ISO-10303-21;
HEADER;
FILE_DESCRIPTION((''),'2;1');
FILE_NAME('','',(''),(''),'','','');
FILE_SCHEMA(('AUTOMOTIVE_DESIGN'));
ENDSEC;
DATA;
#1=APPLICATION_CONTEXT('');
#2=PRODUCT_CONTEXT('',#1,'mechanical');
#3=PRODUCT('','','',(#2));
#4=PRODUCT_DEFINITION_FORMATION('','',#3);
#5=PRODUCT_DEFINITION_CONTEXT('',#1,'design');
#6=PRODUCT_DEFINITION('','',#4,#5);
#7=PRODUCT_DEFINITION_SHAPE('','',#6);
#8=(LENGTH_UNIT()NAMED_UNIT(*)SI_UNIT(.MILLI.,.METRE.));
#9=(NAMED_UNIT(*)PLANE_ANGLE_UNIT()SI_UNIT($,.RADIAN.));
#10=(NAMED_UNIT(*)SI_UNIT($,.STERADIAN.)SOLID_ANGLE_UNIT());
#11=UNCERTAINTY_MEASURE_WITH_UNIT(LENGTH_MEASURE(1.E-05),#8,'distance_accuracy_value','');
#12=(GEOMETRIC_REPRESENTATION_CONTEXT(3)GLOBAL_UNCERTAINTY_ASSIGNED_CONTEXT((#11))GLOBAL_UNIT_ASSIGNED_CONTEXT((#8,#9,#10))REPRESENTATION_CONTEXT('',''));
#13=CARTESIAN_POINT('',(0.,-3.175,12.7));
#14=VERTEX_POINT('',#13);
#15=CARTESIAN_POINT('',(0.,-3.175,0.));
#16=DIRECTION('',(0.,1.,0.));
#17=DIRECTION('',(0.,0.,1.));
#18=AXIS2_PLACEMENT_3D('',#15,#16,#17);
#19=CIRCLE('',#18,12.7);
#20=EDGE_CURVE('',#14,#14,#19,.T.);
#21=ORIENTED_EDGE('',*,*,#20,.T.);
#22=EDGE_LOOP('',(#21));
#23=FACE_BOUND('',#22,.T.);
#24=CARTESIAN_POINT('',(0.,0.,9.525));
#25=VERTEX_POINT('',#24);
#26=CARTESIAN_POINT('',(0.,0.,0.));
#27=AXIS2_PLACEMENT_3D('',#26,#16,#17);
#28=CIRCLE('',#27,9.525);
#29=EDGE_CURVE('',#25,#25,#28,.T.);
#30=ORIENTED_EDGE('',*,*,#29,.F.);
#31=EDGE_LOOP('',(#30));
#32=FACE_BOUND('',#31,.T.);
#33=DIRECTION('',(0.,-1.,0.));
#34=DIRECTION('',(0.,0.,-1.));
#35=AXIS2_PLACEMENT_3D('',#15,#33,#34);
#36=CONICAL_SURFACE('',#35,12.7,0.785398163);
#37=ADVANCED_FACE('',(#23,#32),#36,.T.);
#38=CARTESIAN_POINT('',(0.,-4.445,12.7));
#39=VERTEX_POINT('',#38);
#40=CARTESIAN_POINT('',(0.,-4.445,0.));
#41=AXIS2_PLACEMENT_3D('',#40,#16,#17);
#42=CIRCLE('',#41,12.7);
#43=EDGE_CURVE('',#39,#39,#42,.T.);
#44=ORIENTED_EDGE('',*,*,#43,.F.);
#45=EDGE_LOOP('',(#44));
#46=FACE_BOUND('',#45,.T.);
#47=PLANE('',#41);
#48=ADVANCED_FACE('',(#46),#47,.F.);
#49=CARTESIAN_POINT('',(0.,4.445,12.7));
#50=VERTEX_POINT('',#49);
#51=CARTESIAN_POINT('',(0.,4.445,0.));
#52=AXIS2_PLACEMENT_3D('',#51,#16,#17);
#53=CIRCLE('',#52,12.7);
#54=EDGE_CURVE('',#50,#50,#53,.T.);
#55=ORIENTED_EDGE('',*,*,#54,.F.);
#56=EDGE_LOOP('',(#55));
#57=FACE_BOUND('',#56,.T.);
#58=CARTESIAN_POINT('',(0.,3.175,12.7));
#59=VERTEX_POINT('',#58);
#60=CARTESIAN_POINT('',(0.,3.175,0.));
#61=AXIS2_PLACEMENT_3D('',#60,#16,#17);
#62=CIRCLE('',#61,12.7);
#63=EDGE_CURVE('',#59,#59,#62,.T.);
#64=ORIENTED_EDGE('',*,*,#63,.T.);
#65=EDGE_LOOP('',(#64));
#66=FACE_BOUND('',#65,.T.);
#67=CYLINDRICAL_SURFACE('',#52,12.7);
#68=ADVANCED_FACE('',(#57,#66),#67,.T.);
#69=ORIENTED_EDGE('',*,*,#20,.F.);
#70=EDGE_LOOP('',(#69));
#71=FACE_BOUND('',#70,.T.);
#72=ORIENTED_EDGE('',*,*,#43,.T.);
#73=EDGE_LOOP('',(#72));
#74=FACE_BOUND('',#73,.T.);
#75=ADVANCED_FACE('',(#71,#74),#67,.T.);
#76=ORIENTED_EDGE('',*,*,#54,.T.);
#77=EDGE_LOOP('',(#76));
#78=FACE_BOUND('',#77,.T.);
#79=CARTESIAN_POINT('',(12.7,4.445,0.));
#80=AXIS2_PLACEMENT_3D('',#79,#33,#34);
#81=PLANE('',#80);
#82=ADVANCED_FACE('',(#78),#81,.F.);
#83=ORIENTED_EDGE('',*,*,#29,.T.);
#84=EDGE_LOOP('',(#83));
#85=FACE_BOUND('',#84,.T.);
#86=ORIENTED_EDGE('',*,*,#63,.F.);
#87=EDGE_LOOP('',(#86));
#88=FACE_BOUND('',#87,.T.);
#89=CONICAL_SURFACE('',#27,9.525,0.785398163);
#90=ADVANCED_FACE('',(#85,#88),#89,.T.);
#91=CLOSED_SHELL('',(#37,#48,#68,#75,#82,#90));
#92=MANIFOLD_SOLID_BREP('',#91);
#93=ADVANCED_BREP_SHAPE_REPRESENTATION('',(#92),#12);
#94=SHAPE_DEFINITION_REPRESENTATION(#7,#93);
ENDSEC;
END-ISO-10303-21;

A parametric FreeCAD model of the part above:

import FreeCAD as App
import Part
import Sketcher
Q = App.Units.Quantity

doc = App.newDocument("Part")
params = doc.addObject("Spreadsheet::Sheet", "Params")
for row, (alias, value) in enumerate([
    ("sketch1_width", "0.5 in"),
    ("sketch1_height", "0.35 in"),
    ("sketch1_height2", "0.05 in"),
    ("revolution_angle", "360 deg"),
], start=1):
    params.set(f"A{row}", alias)
    params.set(f"B{row}", "=" + value)
    params.setAlias(f"B{row}", alias)

body = doc.addObject("PartDesign::Body", "Body")

sketch1 = body.newObject("Sketcher::SketchObject", "Sketch")
sketch1.AttachmentSupport = (doc.getObject("XY_Plane"), [""])
sketch1.MapMode = "FlatFace"
sketch1.addGeometry(Part.LineSegment(App.Vector(0, 4.4, 0), App.Vector(0, -4.4, 0)), False)
sketch1.addGeometry(Part.LineSegment(App.Vector(0, -4.4, 0), App.Vector(12.7, -4.4, 0)), False)
sketch1.addGeometry(Part.LineSegment(App.Vector(12.7, -4.4, 0), App.Vector(12.7, -3.2, 0)), False)
sketch1.addGeometry(Part.LineSegment(App.Vector(12.7, -3.2, 0), App.Vector(9.5, 0, 0)), False)
sketch1.addGeometry(Part.LineSegment(App.Vector(9.5, 0, 0), App.Vector(12.7, 3.2, 0)), False)
sketch1.addGeometry(Part.LineSegment(App.Vector(12.7, 3.2, 0), App.Vector(12.7, 4.4, 0)), False)
sketch1.addGeometry(Part.LineSegment(App.Vector(12.7, 4.4, 0), App.Vector(0, 4.4, 0)), False)
sketch1.addConstraint(Sketcher.Constraint("Coincident", 0, 2, 1, 1))
sketch1.addConstraint(Sketcher.Constraint("Coincident", 1, 2, 2, 1))
sketch1.addConstraint(Sketcher.Constraint("Coincident", 2, 2, 3, 1))
sketch1.addConstraint(Sketcher.Constraint("Coincident", 3, 2, 4, 1))
sketch1.addConstraint(Sketcher.Constraint("Coincident", 4, 2, 5, 1))
sketch1.addConstraint(Sketcher.Constraint("Coincident", 5, 2, 6, 1))
sketch1.addConstraint(Sketcher.Constraint("Coincident", 6, 2, 0, 1))
sketch1.addConstraint(Sketcher.Constraint("Vertical", 0))
sketch1.addConstraint(Sketcher.Constraint("Horizontal", 1))
sketch1.addConstraint(Sketcher.Constraint("Vertical", 2))
sketch1.addConstraint(Sketcher.Constraint("Vertical", 5))
sketch1.addConstraint(Sketcher.Constraint("Horizontal", 6))
sketch1.addConstraint(Sketcher.Constraint("Symmetric", 0, 2, 6, 2, -1, 1))
sketch1.addConstraint(Sketcher.Constraint("Symmetric", 2, 2, 4, 2, -1))
sketch1.addConstraint(Sketcher.Constraint("PointOnObject", 3, 2, -1))
sketch1.addConstraint(Sketcher.Constraint("Perpendicular", 3, 4))
sketch1.addConstraint(Sketcher.Constraint("DistanceX", 1, 1, 1, 2, Q("0.5 in")))
sketch1.addConstraint(Sketcher.Constraint("DistanceY", 0, 2, 0, 1, Q("0.35 in")))
sketch1.addConstraint(Sketcher.Constraint("DistanceY", 2, 1, 2, 2, Q("0.05 in")))
sketch1.setExpression("Constraints[16]", "Params.sketch1_width")
sketch1.setExpression("Constraints[17]", "Params.sketch1_height")
sketch1.setExpression("Constraints[18]", "Params.sketch1_height2")
revolution = body.newObject("PartDesign::Revolution", "Revolution")
revolution.Profile = sketch1
revolution.ReferenceAxis = (sketch1, ["V_Axis"])
revolution.setExpression("Angle", "Params.revolution_angle")

doc.recompute()
